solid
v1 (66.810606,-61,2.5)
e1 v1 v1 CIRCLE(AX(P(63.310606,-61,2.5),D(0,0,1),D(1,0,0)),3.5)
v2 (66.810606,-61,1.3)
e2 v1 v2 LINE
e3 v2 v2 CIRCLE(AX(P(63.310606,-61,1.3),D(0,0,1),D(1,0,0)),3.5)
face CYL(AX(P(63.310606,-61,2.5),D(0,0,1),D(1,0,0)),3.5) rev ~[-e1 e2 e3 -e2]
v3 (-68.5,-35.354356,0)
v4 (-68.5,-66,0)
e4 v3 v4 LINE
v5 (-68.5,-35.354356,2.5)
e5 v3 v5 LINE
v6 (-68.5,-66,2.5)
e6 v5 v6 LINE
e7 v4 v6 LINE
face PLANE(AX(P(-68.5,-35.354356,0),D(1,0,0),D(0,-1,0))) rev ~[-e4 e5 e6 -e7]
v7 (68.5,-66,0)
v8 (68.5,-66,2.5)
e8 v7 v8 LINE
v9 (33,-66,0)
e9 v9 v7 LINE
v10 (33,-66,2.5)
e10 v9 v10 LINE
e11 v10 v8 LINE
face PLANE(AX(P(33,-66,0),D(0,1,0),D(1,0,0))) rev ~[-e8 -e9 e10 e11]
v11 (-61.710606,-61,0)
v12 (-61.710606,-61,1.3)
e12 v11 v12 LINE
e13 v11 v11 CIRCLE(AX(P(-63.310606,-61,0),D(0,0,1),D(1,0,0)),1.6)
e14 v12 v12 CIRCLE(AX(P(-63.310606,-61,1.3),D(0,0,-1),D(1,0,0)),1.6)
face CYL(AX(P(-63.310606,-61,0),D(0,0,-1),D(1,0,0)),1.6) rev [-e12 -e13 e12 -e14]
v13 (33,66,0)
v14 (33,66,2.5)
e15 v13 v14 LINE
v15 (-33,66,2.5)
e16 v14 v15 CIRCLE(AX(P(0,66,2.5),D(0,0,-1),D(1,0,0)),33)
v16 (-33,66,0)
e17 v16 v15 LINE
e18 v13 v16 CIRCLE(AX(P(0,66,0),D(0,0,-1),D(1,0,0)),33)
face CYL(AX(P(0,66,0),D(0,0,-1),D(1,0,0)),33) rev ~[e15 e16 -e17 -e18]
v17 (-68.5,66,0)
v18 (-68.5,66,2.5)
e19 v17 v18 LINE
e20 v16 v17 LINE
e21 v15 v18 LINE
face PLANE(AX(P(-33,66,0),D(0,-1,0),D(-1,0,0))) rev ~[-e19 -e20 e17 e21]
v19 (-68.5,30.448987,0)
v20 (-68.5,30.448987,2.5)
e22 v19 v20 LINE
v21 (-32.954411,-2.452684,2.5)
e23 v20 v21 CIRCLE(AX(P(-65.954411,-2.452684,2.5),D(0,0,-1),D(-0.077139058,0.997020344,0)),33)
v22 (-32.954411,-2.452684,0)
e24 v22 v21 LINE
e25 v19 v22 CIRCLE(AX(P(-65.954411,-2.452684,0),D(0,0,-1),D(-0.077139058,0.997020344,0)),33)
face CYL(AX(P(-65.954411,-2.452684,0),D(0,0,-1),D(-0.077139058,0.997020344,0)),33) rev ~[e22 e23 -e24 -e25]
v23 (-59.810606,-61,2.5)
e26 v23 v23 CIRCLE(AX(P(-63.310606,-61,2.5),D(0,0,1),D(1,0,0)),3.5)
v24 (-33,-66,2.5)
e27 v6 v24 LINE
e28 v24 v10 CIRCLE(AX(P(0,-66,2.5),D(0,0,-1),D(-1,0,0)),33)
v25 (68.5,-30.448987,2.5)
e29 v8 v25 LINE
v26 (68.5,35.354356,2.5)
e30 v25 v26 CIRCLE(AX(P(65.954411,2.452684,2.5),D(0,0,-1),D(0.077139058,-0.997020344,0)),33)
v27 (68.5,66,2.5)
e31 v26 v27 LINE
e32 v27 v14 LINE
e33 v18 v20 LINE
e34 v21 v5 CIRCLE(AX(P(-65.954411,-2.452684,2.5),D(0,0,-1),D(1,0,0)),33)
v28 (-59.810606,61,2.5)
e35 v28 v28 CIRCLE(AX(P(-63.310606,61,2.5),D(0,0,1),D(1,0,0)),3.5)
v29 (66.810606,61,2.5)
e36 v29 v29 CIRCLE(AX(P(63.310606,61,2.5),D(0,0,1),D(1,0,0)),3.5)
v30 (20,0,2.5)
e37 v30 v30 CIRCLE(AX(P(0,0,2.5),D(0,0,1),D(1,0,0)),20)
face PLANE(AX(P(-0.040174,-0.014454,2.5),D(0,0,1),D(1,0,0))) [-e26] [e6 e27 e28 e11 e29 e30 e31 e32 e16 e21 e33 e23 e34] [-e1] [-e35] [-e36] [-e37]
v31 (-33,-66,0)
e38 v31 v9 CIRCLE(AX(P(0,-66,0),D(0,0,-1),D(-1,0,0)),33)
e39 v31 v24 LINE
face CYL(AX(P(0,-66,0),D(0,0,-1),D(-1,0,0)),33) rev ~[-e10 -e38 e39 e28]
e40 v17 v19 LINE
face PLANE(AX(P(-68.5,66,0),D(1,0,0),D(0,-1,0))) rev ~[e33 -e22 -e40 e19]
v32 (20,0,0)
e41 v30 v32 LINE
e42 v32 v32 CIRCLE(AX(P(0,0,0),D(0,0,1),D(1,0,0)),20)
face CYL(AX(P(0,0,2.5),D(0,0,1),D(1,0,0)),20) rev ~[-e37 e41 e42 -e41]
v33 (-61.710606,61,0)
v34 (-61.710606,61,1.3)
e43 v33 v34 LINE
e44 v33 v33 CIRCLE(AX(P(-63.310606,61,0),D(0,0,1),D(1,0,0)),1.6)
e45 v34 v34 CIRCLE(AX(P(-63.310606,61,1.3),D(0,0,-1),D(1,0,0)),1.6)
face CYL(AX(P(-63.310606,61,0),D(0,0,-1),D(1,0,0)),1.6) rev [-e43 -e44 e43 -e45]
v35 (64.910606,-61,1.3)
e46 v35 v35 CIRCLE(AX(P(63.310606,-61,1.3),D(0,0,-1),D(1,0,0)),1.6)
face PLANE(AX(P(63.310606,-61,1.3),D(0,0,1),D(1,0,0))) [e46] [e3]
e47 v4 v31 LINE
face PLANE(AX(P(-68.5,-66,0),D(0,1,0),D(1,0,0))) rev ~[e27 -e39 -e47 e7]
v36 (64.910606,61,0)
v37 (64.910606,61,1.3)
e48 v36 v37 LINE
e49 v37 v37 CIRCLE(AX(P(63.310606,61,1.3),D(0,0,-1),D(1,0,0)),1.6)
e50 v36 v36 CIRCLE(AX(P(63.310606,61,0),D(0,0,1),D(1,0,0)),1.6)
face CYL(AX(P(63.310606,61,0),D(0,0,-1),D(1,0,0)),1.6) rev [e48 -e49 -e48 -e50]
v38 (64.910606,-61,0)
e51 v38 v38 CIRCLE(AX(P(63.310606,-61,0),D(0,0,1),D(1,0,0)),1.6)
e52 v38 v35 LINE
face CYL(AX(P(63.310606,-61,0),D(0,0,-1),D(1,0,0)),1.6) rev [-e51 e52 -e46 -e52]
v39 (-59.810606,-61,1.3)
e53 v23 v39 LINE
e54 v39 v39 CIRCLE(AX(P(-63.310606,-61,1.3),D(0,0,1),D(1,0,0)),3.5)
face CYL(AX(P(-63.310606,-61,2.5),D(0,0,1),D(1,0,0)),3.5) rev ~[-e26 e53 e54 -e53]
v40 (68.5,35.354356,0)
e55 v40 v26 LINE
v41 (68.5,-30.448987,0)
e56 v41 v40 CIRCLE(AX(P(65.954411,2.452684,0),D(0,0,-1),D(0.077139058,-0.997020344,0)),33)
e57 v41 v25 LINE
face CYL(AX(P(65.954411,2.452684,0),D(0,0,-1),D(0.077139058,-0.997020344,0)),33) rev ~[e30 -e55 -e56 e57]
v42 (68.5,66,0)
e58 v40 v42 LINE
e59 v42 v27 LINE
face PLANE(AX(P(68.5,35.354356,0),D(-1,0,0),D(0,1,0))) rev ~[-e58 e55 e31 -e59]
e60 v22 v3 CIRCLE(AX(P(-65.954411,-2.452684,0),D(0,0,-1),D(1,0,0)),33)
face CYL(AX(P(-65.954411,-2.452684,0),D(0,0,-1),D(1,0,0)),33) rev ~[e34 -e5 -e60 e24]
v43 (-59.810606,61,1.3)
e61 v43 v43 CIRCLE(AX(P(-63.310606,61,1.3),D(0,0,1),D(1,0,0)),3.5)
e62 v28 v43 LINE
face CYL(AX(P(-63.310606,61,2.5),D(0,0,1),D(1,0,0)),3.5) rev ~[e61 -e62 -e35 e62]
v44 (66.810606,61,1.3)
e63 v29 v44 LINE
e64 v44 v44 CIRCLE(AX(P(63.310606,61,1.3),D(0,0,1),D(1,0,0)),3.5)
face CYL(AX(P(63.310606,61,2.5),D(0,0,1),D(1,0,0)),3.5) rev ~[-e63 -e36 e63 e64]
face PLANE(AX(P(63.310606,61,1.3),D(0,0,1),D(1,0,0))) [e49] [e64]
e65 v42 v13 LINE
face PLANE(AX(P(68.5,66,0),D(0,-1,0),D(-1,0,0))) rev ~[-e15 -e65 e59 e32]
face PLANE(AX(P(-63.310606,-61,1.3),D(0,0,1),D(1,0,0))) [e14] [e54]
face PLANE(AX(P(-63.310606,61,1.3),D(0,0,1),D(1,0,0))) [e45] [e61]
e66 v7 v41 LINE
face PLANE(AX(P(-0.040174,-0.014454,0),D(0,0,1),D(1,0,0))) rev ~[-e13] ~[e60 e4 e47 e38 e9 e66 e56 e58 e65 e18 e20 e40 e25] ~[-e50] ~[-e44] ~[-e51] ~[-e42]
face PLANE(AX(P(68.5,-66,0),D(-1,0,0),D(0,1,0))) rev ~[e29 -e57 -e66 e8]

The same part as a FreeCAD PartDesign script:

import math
import FreeCAD as App
import Part
import Sketcher

V = App.Vector

doc = App.newDocument("Part")
body = doc.addObject("PartDesign::Body", "Body")

# Sketch on XY plane
sketch1 = doc.addObject("Sketcher::SketchObject", "Sketch")
body.addObject(sketch1)
sketch1.AttachmentSupport = (doc.XY_Plane, [""])
sketch1.MapMode = "FlatFace"
sketch1.addGeometry(Part.LineSegment(V(68.5, 66, 0), V(33, 66, 0)), False)
sketch1.addGeometry(Part.ArcOfCircle(Part.Circle(V(0, 66, 0), V(0, 0, 1), 33), math.radians(180), math.radians(360)), False)
sketch1.addGeometry(Part.LineSegment(V(-33, 66, 0), V(-68.5, 66, 0)), False)
sketch1.addGeometry(Part.LineSegment(V(-68.5, 66, 0), V(-68.5, 30.448987, 0)), False)
sketch1.addGeometry(Part.ArcOfCircle(Part.Circle(V(-65.954411, -2.452684, 0), V(0, 0, 1), 33), math.radians(0), math.radians(94.424137)), False)
sketch1.addGeometry(Part.ArcOfCircle(Part.Circle(V(-65.954411, -2.452684, 0), V(0, 0, 1), 33), math.radians(-94.424137), math.radians(0)), False)
sketch1.addGeometry(Part.LineSegment(V(-68.5, -35.354356, 0), V(-68.5, -66, 0)), False)
sketch1.addGeometry(Part.LineSegment(V(-68.5, -66, 0), V(-33, -66, 0)), False)
sketch1.addGeometry(Part.ArcOfCircle(Part.Circle(V(0, -66, 0), V(0, 0, 1), 33), math.radians(0), math.radians(180)), False)
sketch1.addGeometry(Part.LineSegment(V(33, -66, 0), V(68.5, -66, 0)), False)
sketch1.addGeometry(Part.LineSegment(V(68.5, -66, 0), V(68.5, -30.448987, 0)), False)
sketch1.addGeometry(Part.ArcOfCircle(Part.Circle(V(65.954411, 2.452684, 0), V(0, 0, 1), 33), math.radians(85.575863), math.radians(274.424137)), False)
sketch1.addGeometry(Part.LineSegment(V(68.5, 35.354356, 0), V(68.5, 66, 0)), False)
sketch1.addGeometry(Part.Circle(V(-63.310606, -61, 0), V(0, 0, 1), 1.6), False)
sketch1.addGeometry(Part.Circle(V(63.310606, -61, 0), V(0, 0, 1), 1.6), False)
sketch1.addGeometry(Part.Circle(V(-63.310606, 61, 0), V(0, 0, 1), 1.6), False)
sketch1.addGeometry(Part.Circle(V(63.310606, 61, 0), V(0, 0, 1), 1.6), False)
sketch1.addConstraint(Sketcher.Constraint("Coincident", 0, 2, 1, 2))
sketch1.addConstraint(Sketcher.Constraint("Coincident", 1, 1, 2, 1))
sketch1.addConstraint(Sketcher.Constraint("Coincident", 2, 2, 3, 1))
sketch1.addConstraint(Sketcher.Constraint("Coincident", 3, 2, 4, 2))
sketch1.addConstraint(Sketcher.Constraint("Tangent", 4, 1, 5, 2))
sketch1.addConstraint(Sketcher.Constraint("Coincident", 5, 1, 6, 1))
sketch1.addConstraint(Sketcher.Constraint("Coincident", 6, 2, 7, 1))
sketch1.addConstraint(Sketcher.Constraint("Coincident", 7, 2, 8, 2))
sketch1.addConstraint(Sketcher.Constraint("Coincident", 8, 1, 9, 1))
sketch1.addConstraint(Sketcher.Constraint("Coincident", 9, 2, 10, 1))
sketch1.addConstraint(Sketcher.Constraint("Coincident", 10, 2, 11, 2))
sketch1.addConstraint(Sketcher.Constraint("Coincident", 11, 1, 12, 1))
sketch1.addConstraint(Sketcher.Constraint("Coincident", 12, 2, 0, 1))
sketch1.addConstraint(Sketcher.Constraint("Horizontal", 0))
sketch1.addConstraint(Sketcher.Constraint("Horizontal", 2))
sketch1.addConstraint(Sketcher.Constraint("Vertical", 3))
sketch1.addConstraint(Sketcher.Constraint("Vertical", 6))
sketch1.addConstraint(Sketcher.Constraint("Horizontal", 7))
sketch1.addConstraint(Sketcher.Constraint("Horizontal", 9))
sketch1.addConstraint(Sketcher.Constraint("Vertical", 10))
sketch1.addConstraint(Sketcher.Constraint("Vertical", 12))
sketch1.addConstraint(Sketcher.Constraint("Equal", 1, 4))
sketch1.addConstraint(Sketcher.Constraint("Equal", 4, 5))
sketch1.addConstraint(Sketcher.Constraint("Equal", 5, 8))
sketch1.addConstraint(Sketcher.Constraint("Equal", 8, 11))
sketch1.addConstraint(Sketcher.Constraint("Equal", 13, 14))
sketch1.addConstraint(Sketcher.Constraint("Equal", 14, 15))
sketch1.addConstraint(Sketcher.Constraint("Equal", 15, 16))
sketch1.addConstraint(Sketcher.Constraint("Symmetric", 1, 3, 8, 3, -1, 1))
sketch1.addConstraint(Sketcher.Constraint("Symmetric", 4, 3, 11, 3, -1, 1))
sketch1.addConstraint(Sketcher.Constraint("Symmetric", 14, 3, 15, 3, -1, 1))
sketch1.addConstraint(Sketcher.Constraint("Symmetric", 13, 3, 16, 3, -1, 1))
sketch1.addConstraint(Sketcher.Constraint("Symmetric", 2, 2, 9, 2, -1, 1))
sketch1.addConstraint(Sketcher.Constraint("Symmetric", 6, 2, 12, 2, -1, 1))
sketch1.addConstraint(Sketcher.Constraint("Symmetric", 13, 3, 14, 3, -2))
sketch1.addConstraint(Sketcher.Constraint("Symmetric", 0, 2, 1, 1, -2))
sketch1.addConstraint(Sketcher.Constraint("Horizontal", 1, 3, 0, 2))
sketch1.addConstraint(Sketcher.Constraint("Horizontal", 5, 3, 4, 1))
sketch1.addConstraint(Sketcher.Constraint("Vertical", 3, 2, 5, 1))
sketch1.addConstraint(Sketcher.Constraint("Radius", 1, 33.0))
sketch1.addConstraint(Sketcher.Constraint("Diameter", 13, 3.2))
sketch1.addConstraint(Sketcher.Constraint("DistanceX", 0, 2, 0, 1, 35.5))
sketch1.addConstraint(Sketcher.Constraint("DistanceY", -1, 1, 1, 3, 66.0))
sketch1.addConstraint(Sketcher.Constraint("DistanceY", 13, 3, -1, 1, 61.0))
sketch1.addConstraint(Sketcher.Constraint("DistanceY", 3, 2, 3, 1, 35.551013))
sketch1.addConstraint(Sketcher.Constraint("DistanceY", 6, 2, 6, 1, 30.645644))
sketch1.addConstraint(Sketcher.Constraint("DistanceX", 13, 3, -1, 1, 63.310606))
pad1 = doc.addObject("PartDesign::Pad", "Pad")
body.addObject(pad1)
pad1.Profile = sketch1
pad1.Length = 2.5

# Sketch on XY plane
sketch2 = doc.addObject("Sketcher::SketchObject", "Sketch001")
body.addObject(sketch2)
sketch2.AttachmentSupport = (doc.XY_Plane, [""])
sketch2.MapMode = "FlatFace"
sketch2.AttachmentOffset = App.Placement(V(0, 0, 2.5), App.Rotation())
sketch2.addGeometry(Part.Circle(V(0, 0, 0), V(0, 0, 1), 20), False)
sketch2.addConstraint(Sketcher.Constraint("Coincident", 0, 3, -1, 1))
sketch2.addConstraint(Sketcher.Constraint("Diameter", 0, 40.0))
pocket1 = doc.addObject("PartDesign::Pocket", "Pocket")
body.addObject(pocket1)
pocket1.Profile = sketch2
pocket1.Length = 23

# Sketch on XY plane
sketch3 = doc.addObject("Sketcher::SketchObject", "Sketch002")
body.addObject(sketch3)
sketch3.AttachmentSupport = (doc.XY_Plane, [""])
sketch3.MapMode = "FlatFace"
sketch3.AttachmentOffset = App.Placement(V(0, 0, 2.5), App.Rotation())
sketch3.addGeometry(Part.Circle(V(63.310606, -61, 0), V(0, 0, 1), 3.5), False)
sketch3.addGeometry(Part.Circle(V(63.310606, 61, 0), V(0, 0, 1), 3.5), False)
sketch3.addGeometry(Part.Circle(V(-63.310606, 61, 0), V(0, 0, 1), 3.5), False)
sketch3.addGeometry(Part.Circle(V(-63.310606, -61, 0), V(0, 0, 1), 3.5), False)
sketch3.addConstraint(Sketcher.Constraint("Equal", 0, 1))
sketch3.addConstraint(Sketcher.Constraint("Equal", 1, 2))
sketch3.addConstraint(Sketcher.Constraint("Equal", 2, 3))
sketch3.addConstraint(Sketcher.Constraint("Symmetric", 0, 3, 2, 3, -1, 1))
sketch3.addConstraint(Sketcher.Constraint("Symmetric", 1, 3, 3, 3, -1, 1))
sketch3.addConstraint(Sketcher.Constraint("Symmetric", 1, 3, 2, 3, -2))
sketch3.addConstraint(Sketcher.Constraint("Diameter", 0, 7.0))
sketch3.addConstraint(Sketcher.Constraint("DistanceY", 0, 3, -1, 1, 61.0))
sketch3.addConstraint(Sketcher.Constraint("DistanceX", -1, 1, 0, 3, 63.310606))
pocket2 = doc.addObject("PartDesign::Pocket", "Pocket001")
body.addObject(pocket2)
pocket2.Profile = sketch3
pocket2.Length = 1.2

doc.recompute()
